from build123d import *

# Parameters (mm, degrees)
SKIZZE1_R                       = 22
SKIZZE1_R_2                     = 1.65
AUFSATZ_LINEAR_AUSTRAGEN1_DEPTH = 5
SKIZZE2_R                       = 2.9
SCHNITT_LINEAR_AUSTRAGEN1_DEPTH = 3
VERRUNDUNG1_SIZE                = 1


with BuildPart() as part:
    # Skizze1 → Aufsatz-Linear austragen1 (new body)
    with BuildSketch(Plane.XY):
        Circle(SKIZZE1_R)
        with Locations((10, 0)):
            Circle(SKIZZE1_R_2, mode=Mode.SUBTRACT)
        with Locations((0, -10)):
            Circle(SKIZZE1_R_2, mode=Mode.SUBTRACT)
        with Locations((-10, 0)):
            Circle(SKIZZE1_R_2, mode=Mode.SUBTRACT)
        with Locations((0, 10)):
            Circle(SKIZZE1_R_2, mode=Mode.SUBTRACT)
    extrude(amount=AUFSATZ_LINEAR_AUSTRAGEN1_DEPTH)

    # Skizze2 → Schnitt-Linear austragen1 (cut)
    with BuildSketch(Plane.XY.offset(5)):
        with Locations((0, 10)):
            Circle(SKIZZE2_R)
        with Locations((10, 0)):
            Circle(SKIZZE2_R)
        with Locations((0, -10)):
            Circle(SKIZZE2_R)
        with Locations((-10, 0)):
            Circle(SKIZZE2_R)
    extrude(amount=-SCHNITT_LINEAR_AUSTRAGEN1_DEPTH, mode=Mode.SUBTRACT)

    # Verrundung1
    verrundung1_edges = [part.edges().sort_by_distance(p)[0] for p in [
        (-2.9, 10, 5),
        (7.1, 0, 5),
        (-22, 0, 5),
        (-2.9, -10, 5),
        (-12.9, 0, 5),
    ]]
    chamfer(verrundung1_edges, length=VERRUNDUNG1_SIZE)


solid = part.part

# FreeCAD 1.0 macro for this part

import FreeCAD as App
import Part
import Sketcher

V = App.Vector
Q = App.Units.Quantity


def edges_at(feature, points):
    """Names of the edges that pass closest to the given points."""
    edges = feature.Shape.Edges
    near = lambda p: min(range(len(edges)), key=lambda i: edges[i].distToShape(Part.Vertex(*p))[0])
    return sorted({f"Edge{near(p) + 1}" for p in points})

doc = App.newDocument("Part")
body = doc.addObject("PartDesign::Body", "Body")

# Sketch on XY plane
sketch1 = body.newObject("Sketcher::SketchObject", "Sketch")
sketch1.AttachmentSupport = (doc.getObject("XY_Plane"), [""])
sketch1.MapMode = "FlatFace"
sketch1.addGeometry(Part.Circle(V(0, 0, 0), V(0, 0, 1), 22), False)
sketch1.addGeometry(Part.Circle(V(-10, 0, 0), V(0, 0, 1), 1.6), False)
sketch1.addGeometry(Part.Circle(V(0, -10, 0), V(0, 0, 1), 1.6), False)
sketch1.addGeometry(Part.Circle(V(10, 0, 0), V(0, 0, 1), 1.6), False)
sketch1.addGeometry(Part.Circle(V(0, 10, 0), V(0, 0, 1), 1.6), False)
sketch1.addConstraint(Sketcher.Constraint("Coincident", 0, 3, -1, 1))
sketch1.addConstraint(Sketcher.Constraint("Equal", 1, 2))
sketch1.addConstraint(Sketcher.Constraint("Equal", 2, 3))
sketch1.addConstraint(Sketcher.Constraint("Equal", 3, 4))
sketch1.addConstraint(Sketcher.Constraint("Symmetric", 1, 3, 3, 3, -1, 1))
sketch1.addConstraint(Sketcher.Constraint("Symmetric", 2, 3, 4, 3, -1, 1))
sketch1.addConstraint(Sketcher.Constraint("PointOnObject", 1, 3, -1))
sketch1.addConstraint(Sketcher.Constraint("PointOnObject", 2, 3, -2))
sketch1.addConstraint(Sketcher.Constraint("Diameter", 0, Q("44 mm")))
sketch1.addConstraint(Sketcher.Constraint("Diameter", 1, Q("3.3 mm")))
sketch1.addConstraint(Sketcher.Constraint("DistanceX", 1, 3, -1, 1, Q("10 mm")))
sketch1.addConstraint(Sketcher.Constraint("DistanceY", 2, 3, -1, 1, Q("10 mm")))
pad1 = body.newObject("PartDesign::Pad", "Pad")
pad1.Profile = sketch1
pad1.Length = 5

# Sketch on XY plane
sketch2 = body.newObject("Sketcher::SketchObject", "Sketch001")
sketch2.AttachmentSupport = (doc.getObject("XY_Plane"), [""])
sketch2.MapMode = "FlatFace"
sketch2.AttachmentOffset = App.Placement(V(0, 0, 5), App.Rotation())
sketch2.addGeometry(Part.Circle(V(0, 10, 0), V(0, 0, 1), 2.9), False)
sketch2.addGeometry(Part.Circle(V(10, 0, 0), V(0, 0, 1), 2.9), False)
sketch2.addGeometry(Part.Circle(V(0, -10, 0), V(0, 0, 1), 2.9), False)
sketch2.addGeometry(Part.Circle(V(-10, 0, 0), V(0, 0, 1), 2.9), False)
sketch2.addConstraint(Sketcher.Constraint("Equal", 0, 1))
sketch2.addConstraint(Sketcher.Constraint("Equal", 1, 2))
sketch2.addConstraint(Sketcher.Constraint("Equal", 2, 3))
sketch2.addConstraint(Sketcher.Constraint("Symmetric", 0, 3, 2, 3, -1, 1))
sketch2.addConstraint(Sketcher.Constraint("Symmetric", 1, 3, 3, 3, -1, 1))
sketch2.addConstraint(Sketcher.Constraint("PointOnObject", 0, 3, -2))
sketch2.addConstraint(Sketcher.Constraint("PointOnObject", 1, 3, -1))
sketch2.addConstraint(Sketcher.Constraint("Diameter", 0, Q("5.8 mm")))
sketch2.addConstraint(Sketcher.Constraint("DistanceY", -1, 1, 0, 3, Q("10 mm")))
sketch2.addConstraint(Sketcher.Constraint("DistanceX", -1, 1, 1, 3, Q("10 mm")))
pocket1 = body.newObject("PartDesign::Pocket", "Pocket")
pocket1.Profile = sketch2
pocket1.Length = 3
doc.recompute()

chamfer = body.newObject("PartDesign::Chamfer", "Chamfer")
chamfer.Base = (pocket1, edges_at(pocket1, [
    (-2.9, 10, 5),
    (7.1, 0, 5),
    (-22, 0, 5),
    (-2.9, -10, 5),
    (-12.9, 0, 5),
]))
chamfer.Size = 1

doc.recompute()
